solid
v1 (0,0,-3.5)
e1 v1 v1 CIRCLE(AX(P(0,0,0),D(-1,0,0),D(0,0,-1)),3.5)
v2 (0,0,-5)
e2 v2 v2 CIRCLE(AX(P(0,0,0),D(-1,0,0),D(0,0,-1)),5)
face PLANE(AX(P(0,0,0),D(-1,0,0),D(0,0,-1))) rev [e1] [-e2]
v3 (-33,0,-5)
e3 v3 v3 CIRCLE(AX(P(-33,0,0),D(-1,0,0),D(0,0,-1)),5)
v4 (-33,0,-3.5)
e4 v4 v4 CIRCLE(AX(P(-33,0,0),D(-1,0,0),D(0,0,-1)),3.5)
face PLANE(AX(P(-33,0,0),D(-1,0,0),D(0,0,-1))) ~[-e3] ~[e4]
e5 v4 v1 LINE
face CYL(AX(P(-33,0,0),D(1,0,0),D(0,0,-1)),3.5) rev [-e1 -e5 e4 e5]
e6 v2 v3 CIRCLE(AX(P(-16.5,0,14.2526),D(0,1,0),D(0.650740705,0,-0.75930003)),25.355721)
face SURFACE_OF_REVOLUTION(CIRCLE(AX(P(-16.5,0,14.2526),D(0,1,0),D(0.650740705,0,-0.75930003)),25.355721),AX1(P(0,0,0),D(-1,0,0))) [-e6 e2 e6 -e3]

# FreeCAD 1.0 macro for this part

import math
import FreeCAD as App
import Part
import Sketcher

V = App.Vector

doc = App.newDocument("Part")
body = doc.addObject("PartDesign::Body", "Body")

# Sketch on XZ plane
sketch1 = body.newObject("Sketcher::SketchObject", "Sketch")
sketch1.AttachmentSupport = (doc.getObject("XZ_Plane"), [""])
sketch1.MapMode = "FlatFace"
sketch1.addGeometry([
    Part.LineSegment(V(-33, -3.5, 0), V(0, -3.5, 0)),
    Part.LineSegment(V(0, -3.5, 0), V(0, -5, 0)),
    Part.ArcOfCircle(Part.Circle(V(-16.5, 14.2526, 0), V(0, 0, 1), 25.355721), math.radians(-130.597471), math.radians(-49.402529)),
    Part.LineSegment(V(-33, -5, 0), V(-33, -3.5, 0)),
], False)
sketch1.addConstraint([
    Sketcher.Constraint("Coincident", 0, 2, 1, 1),
    Sketcher.Constraint("Coincident", 1, 2, 2, 2),
    Sketcher.Constraint("Coincident", 2, 1, 3, 1),
    Sketcher.Constraint("Coincident", 3, 2, 0, 1),
    Sketcher.Constraint("Horizontal", 0),
    Sketcher.Constraint("Vertical", 1),
    Sketcher.Constraint("Vertical", 3),
    Sketcher.Constraint("PointOnObject", 0, 2, -2),
    Sketcher.Constraint("Horizontal", 1, 2, 2, 1),
    Sketcher.Constraint("DistanceX", 0, 1, 0, 2, 33.0),
    Sketcher.Constraint("DistanceY", 1, 2, 1, 1, 1.5),
    Sketcher.Constraint("DistanceY", 0, 2, -1, 1, 3.5),
    Sketcher.Constraint("Radius", 2, 25.3557),
])
revolution = body.newObject("PartDesign::Revolution", "Revolution")
revolution.Profile = sketch1
revolution.ReferenceAxis = (sketch1, ["H_Axis"])
revolution.Angle = 360

doc.recompute()
